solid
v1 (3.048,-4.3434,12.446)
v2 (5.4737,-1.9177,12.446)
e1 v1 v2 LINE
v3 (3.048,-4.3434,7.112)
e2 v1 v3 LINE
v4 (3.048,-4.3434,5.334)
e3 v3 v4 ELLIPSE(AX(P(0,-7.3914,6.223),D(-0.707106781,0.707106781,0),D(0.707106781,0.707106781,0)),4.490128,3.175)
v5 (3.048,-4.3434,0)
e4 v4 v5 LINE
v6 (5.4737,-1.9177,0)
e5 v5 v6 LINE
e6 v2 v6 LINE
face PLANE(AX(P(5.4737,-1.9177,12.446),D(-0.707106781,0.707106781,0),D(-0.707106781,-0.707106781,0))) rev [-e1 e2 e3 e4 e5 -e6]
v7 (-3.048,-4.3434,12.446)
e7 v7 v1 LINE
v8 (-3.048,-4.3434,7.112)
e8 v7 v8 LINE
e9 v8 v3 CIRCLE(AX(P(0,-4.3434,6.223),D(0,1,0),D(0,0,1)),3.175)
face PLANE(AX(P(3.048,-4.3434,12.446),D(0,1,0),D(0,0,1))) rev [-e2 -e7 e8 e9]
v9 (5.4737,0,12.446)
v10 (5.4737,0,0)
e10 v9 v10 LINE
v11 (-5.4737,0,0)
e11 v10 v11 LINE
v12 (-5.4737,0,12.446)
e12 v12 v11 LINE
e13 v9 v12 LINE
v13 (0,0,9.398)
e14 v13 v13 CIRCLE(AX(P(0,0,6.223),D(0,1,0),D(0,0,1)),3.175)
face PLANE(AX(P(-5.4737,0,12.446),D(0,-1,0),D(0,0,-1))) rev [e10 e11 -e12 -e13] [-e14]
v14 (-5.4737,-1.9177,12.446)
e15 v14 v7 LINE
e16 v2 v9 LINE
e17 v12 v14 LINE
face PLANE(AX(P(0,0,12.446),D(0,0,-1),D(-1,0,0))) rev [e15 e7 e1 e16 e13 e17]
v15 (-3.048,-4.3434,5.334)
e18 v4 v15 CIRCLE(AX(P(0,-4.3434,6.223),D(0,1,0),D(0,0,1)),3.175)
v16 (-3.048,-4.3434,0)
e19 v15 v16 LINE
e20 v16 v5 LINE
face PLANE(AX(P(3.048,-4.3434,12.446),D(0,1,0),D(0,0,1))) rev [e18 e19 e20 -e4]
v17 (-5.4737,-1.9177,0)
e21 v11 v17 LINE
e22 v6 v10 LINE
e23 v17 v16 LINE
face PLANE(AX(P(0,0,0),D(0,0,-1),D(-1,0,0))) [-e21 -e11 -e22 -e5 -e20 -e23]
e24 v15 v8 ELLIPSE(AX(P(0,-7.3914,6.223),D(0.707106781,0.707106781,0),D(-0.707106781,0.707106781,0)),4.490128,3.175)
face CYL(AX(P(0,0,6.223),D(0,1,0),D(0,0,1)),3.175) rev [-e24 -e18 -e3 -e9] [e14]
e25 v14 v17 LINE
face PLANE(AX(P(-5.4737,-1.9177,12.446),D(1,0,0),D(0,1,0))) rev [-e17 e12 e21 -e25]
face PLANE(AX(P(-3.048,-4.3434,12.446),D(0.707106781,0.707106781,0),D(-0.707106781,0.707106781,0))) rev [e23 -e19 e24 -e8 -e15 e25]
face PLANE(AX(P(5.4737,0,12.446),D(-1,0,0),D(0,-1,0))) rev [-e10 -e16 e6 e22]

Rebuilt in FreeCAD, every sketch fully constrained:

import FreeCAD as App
import Part
import Sketcher
from FreeCAD import Vector
Q = App.Units.Quantity

doc = App.newDocument("Part")
body = doc.addObject("PartDesign::Body", "Body")

sketch1 = doc.addObject("Sketcher::SketchObject", "Sketch")
body.addObject(sketch1)
sketch1.AttachmentSupport = (doc.XY_Plane, [""])
sketch1.MapMode = "FlatFace"
sketch1.addGeometry([
    Part.LineSegment(Vector(5.5, 0, 0), Vector(-5.5, 0, 0)),
    Part.LineSegment(Vector(-5.5, 0, 0), Vector(-5.5, -1.9, 0)),
    Part.LineSegment(Vector(-5.5, -1.9, 0), Vector(-3, -4.3, 0)),
    Part.LineSegment(Vector(-3, -4.3, 0), Vector(3, -4.3, 0)),
    Part.LineSegment(Vector(3, -4.3, 0), Vector(5.5, -1.9, 0)),
    Part.LineSegment(Vector(5.5, -1.9, 0), Vector(5.5, 0, 0)),
], False)
sketch1.addConstraint([
    Sketcher.Constraint("Coincident", 0, 2, 1, 1),
    Sketcher.Constraint("Coincident", 1, 2, 2, 1),
    Sketcher.Constraint("Coincident", 2, 2, 3, 1),
    Sketcher.Constraint("Coincident", 3, 2, 4, 1),
    Sketcher.Constraint("Coincident", 4, 2, 5, 1),
    Sketcher.Constraint("Coincident", 5, 2, 0, 1),
    Sketcher.Constraint("Horizontal", 0),
    Sketcher.Constraint("Vertical", 1),
    Sketcher.Constraint("Horizontal", 3),
    Sketcher.Constraint("Vertical", 5),
    Sketcher.Constraint("Symmetric", 0, 2, 5, 2, -1, 1),
    Sketcher.Constraint("Perpendicular", 2, 4),
    Sketcher.Constraint("Horizontal", 1, 2, 4, 2),
    Sketcher.Constraint("Equal", 2, 4),
    Sketcher.Constraint("DistanceX", 3, 1, 3, 2, Q("0.24 in")),
    Sketcher.Constraint("DistanceX", 0, 2, 0, 1, Q("0.431 in")),
    Sketcher.Constraint("DistanceY", 1, 2, 1, 1, Q("0.0755 in")),
])
pad1 = doc.addObject("PartDesign::Pad", "Pad")
body.addObject(pad1)
pad1.Profile = sketch1
pad1.Length = Q("0.49 in")

sketch2 = doc.addObject("Sketcher::SketchObject", "Sketch001")
body.addObject(sketch2)
sketch2.AttachmentSupport = (doc.XZ_Plane, [""])
sketch2.MapMode = "FlatFace"
sketch2.addGeometry(Part.Circle(Vector(0, 6.2, 0), Vector(0, 0, 1), 3.2), False)
sketch2.addConstraint([
    Sketcher.Constraint("PointOnObject", 0, 3, -2),
    Sketcher.Constraint("Diameter", 0, Q("0.25 in")),
    Sketcher.Constraint("DistanceY", -1, 1, 0, 3, Q("0.245 in")),
])
doc.recompute()
hole = doc.addObject("PartDesign::Hole", "Hole")
body.addObject(hole)
hole.Profile = sketch2
hole.ThreadType = "None"
hole.Diameter = Q("0.25 in")
hole.DepthType = "ThroughAll"
hole.Reversed = True

doc.recompute()
